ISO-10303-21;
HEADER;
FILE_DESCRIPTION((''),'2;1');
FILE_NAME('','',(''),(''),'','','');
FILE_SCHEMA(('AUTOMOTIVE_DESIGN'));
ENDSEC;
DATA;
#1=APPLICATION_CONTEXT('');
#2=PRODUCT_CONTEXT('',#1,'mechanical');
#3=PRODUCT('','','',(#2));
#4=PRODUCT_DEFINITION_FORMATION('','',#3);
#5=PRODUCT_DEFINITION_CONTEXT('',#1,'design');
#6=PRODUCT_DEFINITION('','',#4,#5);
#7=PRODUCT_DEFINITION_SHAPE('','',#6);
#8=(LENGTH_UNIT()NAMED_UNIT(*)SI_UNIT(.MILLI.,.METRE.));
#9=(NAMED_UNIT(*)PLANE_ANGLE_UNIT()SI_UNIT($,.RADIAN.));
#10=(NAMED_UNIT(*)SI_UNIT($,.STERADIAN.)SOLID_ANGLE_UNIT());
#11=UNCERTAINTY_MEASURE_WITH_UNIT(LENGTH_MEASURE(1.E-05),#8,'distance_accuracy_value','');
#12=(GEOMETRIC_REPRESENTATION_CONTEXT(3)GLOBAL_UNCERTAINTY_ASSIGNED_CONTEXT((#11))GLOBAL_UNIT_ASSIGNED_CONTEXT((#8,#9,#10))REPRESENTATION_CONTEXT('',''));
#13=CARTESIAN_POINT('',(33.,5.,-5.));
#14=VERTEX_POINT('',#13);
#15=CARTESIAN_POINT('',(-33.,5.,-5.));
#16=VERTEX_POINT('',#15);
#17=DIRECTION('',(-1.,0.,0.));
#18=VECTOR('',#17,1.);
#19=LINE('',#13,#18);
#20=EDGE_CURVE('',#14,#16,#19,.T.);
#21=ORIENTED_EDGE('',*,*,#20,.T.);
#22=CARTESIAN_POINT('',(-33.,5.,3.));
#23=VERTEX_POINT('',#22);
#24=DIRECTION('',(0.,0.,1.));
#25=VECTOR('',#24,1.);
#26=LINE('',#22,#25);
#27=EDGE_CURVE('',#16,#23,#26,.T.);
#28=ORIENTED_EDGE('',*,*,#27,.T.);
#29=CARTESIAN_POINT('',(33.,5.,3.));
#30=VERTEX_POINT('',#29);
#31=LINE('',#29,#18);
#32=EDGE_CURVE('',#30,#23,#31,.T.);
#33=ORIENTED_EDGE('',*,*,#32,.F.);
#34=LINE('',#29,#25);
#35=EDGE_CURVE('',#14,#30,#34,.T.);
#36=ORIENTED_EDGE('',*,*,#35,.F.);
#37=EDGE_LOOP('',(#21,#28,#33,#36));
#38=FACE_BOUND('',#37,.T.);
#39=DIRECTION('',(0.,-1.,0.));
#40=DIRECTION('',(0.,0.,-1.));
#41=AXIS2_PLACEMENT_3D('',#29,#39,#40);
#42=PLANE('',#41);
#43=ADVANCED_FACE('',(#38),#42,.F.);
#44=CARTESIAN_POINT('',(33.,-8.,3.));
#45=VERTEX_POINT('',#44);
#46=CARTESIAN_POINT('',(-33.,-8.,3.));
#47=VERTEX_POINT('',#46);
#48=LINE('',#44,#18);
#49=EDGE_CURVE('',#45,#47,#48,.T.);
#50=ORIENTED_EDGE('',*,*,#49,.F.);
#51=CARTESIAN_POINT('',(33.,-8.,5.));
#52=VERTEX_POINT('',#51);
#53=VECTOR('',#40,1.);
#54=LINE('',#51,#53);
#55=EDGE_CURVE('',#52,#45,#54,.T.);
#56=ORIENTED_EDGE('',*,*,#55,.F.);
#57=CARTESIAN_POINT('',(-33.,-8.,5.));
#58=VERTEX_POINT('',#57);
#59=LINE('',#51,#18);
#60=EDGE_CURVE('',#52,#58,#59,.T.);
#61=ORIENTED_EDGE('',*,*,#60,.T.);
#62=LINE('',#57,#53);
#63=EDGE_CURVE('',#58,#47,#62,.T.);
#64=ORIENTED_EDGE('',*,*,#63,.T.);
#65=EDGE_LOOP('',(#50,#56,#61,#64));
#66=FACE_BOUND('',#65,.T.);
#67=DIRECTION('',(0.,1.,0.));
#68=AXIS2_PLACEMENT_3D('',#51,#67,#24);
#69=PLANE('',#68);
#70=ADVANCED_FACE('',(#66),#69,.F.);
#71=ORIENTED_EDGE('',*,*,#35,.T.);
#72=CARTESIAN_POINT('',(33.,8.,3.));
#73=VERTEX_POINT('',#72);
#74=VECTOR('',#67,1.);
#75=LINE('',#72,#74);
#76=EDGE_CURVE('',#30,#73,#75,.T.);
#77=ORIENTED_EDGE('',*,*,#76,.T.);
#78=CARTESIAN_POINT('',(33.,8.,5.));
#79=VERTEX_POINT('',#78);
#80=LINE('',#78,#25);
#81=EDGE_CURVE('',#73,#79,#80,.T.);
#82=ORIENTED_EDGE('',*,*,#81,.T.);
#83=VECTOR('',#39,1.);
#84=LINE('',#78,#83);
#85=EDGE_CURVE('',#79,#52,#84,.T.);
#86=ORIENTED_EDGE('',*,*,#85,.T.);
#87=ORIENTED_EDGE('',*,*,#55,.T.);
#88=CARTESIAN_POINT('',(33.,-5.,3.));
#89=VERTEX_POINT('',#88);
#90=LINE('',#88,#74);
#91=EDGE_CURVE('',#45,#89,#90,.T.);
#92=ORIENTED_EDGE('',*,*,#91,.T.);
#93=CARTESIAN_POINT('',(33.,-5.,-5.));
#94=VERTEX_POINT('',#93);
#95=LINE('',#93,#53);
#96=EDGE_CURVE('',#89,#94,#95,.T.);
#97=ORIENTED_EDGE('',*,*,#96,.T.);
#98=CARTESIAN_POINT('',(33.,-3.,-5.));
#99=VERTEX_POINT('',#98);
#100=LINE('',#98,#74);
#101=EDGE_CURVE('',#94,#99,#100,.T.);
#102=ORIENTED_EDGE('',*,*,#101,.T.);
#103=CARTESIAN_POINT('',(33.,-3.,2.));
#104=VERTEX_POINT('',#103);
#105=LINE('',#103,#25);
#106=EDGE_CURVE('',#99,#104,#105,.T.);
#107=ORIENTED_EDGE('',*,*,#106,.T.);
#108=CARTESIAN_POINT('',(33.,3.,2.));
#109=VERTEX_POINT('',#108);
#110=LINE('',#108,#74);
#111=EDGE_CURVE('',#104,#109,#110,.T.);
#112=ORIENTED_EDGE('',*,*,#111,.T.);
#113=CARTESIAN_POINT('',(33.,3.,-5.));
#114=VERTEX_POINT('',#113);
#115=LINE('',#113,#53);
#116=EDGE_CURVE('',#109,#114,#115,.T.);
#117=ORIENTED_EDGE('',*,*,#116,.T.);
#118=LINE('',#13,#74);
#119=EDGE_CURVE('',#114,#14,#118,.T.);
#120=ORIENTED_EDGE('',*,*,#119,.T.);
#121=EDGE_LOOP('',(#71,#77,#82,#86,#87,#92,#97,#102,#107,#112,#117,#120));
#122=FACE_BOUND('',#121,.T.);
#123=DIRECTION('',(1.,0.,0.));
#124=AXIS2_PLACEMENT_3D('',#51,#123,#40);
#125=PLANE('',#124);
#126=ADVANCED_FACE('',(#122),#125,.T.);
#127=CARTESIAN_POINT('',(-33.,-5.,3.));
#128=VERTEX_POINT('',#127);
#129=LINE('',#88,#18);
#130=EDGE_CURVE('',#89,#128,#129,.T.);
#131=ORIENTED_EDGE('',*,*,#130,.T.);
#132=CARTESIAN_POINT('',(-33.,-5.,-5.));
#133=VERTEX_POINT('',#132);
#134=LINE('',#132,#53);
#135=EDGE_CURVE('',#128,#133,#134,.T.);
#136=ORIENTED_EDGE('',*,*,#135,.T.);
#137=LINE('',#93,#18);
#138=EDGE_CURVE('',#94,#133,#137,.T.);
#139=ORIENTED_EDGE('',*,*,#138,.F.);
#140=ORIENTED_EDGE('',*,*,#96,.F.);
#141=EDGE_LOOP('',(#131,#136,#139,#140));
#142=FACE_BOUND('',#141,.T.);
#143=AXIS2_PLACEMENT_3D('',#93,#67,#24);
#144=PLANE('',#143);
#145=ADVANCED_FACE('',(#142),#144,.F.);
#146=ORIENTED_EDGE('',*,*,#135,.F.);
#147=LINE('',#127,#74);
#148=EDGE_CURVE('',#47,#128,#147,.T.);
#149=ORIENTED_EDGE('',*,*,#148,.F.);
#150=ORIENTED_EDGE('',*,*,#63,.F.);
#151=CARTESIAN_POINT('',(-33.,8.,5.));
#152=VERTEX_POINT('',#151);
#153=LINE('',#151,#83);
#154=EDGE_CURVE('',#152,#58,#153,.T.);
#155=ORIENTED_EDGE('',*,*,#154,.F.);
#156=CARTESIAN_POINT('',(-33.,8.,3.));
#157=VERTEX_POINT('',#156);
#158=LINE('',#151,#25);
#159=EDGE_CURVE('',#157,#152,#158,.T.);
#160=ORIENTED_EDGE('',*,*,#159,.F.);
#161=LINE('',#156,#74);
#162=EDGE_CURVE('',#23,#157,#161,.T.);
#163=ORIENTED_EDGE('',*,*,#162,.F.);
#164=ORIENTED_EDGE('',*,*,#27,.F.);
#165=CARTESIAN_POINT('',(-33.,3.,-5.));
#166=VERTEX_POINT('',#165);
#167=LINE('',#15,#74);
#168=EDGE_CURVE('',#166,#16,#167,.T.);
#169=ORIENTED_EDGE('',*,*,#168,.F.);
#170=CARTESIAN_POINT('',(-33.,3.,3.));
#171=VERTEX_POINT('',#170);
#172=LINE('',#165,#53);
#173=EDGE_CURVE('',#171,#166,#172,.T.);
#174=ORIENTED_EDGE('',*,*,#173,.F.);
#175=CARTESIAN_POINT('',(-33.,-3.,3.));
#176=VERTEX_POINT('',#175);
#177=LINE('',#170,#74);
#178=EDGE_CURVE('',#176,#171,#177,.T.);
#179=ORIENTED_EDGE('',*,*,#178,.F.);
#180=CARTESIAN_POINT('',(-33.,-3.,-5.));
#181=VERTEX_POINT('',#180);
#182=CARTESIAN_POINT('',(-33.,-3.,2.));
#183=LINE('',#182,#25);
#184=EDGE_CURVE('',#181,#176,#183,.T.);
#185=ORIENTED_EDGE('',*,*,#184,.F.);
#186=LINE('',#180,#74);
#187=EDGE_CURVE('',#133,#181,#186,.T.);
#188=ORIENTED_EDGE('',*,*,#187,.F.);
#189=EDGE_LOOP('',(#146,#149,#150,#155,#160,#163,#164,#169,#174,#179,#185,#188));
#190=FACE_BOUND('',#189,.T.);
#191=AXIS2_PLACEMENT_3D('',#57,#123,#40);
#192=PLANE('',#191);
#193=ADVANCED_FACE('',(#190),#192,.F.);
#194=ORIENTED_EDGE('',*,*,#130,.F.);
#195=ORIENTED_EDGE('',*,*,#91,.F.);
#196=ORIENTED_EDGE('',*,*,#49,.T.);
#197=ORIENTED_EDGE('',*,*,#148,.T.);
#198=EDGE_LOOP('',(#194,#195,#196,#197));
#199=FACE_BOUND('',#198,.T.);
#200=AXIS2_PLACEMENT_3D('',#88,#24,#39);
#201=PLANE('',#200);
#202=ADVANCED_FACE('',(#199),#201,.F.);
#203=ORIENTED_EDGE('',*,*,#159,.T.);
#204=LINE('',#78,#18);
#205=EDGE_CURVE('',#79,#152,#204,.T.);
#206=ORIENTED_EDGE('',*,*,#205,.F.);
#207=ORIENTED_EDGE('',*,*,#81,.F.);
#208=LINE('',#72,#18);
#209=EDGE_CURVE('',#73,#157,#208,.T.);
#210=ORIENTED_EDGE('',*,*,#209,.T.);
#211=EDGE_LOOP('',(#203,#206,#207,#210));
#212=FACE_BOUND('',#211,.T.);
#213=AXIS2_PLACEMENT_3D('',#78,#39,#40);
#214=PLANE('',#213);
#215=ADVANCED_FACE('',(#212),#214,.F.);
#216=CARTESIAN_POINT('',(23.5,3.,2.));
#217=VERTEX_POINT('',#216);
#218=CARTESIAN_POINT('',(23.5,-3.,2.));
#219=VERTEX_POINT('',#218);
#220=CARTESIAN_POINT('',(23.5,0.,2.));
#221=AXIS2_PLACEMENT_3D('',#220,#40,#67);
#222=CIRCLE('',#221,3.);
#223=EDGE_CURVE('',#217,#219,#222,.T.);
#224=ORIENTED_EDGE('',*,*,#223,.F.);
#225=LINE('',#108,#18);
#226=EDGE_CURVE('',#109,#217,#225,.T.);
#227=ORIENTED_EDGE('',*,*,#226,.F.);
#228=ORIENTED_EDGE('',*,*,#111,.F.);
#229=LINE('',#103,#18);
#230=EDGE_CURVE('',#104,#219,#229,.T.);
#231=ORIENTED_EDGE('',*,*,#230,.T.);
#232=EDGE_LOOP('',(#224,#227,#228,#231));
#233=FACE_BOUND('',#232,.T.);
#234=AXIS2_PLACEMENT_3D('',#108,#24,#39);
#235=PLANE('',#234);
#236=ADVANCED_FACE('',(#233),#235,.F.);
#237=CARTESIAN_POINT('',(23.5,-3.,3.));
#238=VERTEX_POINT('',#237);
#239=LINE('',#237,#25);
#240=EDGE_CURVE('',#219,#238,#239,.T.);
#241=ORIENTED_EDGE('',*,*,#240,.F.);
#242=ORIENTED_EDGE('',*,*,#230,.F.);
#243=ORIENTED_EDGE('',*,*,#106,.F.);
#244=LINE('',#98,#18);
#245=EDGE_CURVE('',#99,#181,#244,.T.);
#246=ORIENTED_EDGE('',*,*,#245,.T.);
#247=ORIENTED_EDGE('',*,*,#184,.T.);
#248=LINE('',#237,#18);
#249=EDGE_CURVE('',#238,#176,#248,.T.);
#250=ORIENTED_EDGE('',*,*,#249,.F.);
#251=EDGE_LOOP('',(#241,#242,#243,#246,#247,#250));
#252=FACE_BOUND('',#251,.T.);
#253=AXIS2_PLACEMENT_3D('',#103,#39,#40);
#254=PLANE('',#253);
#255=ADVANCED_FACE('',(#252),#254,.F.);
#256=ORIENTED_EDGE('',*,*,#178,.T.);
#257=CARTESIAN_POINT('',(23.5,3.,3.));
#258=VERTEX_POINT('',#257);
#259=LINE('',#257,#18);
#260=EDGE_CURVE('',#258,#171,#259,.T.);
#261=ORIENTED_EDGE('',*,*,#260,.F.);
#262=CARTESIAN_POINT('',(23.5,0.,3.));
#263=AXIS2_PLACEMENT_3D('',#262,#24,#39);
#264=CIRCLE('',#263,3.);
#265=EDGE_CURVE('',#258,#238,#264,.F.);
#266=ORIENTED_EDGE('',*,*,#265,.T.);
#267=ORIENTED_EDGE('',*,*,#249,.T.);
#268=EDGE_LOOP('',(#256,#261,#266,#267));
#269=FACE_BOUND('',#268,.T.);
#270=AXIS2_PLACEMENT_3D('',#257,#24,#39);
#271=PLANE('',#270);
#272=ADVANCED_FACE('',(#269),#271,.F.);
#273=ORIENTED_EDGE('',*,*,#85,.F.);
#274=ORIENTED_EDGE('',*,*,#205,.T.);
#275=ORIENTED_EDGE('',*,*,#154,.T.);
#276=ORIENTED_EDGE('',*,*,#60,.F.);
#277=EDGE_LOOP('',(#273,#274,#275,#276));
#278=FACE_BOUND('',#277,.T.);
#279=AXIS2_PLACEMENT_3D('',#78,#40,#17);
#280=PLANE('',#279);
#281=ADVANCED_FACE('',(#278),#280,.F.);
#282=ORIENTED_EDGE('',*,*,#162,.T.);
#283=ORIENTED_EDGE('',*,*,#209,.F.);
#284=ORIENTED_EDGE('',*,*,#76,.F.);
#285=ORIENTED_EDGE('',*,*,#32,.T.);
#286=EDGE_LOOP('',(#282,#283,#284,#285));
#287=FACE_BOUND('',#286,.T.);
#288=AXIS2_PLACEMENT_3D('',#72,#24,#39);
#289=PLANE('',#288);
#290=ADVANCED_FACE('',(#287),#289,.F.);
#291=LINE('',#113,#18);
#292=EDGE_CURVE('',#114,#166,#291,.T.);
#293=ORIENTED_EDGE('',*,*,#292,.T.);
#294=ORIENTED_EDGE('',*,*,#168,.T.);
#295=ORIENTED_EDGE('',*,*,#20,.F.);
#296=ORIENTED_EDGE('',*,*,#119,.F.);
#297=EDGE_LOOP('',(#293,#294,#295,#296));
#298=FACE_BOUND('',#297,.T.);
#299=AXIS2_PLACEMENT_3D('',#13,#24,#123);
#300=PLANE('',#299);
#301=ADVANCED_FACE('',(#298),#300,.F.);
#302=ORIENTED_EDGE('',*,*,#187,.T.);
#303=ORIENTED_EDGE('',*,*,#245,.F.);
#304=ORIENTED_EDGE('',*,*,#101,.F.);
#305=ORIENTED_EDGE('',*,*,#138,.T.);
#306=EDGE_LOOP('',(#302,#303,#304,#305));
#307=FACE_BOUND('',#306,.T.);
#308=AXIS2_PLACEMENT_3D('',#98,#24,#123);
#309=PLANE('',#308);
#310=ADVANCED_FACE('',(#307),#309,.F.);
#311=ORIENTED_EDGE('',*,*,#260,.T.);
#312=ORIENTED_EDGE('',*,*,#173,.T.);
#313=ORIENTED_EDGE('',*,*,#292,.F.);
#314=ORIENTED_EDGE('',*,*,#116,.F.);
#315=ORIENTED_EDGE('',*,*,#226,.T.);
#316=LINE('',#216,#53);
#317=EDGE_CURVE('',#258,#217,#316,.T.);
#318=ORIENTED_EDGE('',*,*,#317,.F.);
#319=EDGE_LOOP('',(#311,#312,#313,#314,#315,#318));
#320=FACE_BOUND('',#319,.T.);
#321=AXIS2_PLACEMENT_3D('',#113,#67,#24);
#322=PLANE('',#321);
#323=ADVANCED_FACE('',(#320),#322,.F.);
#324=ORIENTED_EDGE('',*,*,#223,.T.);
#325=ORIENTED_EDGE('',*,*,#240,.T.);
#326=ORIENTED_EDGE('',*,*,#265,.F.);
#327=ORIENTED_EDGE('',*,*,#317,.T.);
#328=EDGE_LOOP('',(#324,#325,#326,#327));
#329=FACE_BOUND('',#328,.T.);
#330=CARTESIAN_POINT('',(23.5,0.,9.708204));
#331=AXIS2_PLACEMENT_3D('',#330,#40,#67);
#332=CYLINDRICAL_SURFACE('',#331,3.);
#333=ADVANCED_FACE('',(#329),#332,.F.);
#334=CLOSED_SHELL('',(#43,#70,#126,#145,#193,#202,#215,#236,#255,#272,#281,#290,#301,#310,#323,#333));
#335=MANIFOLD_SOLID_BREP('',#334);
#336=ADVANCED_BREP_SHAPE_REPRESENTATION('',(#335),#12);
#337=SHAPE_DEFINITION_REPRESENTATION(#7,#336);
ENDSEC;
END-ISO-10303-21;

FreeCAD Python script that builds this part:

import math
import FreeCAD as App
import Part
import Sketcher
from FreeCAD import Vector
Q = App.Units.Quantity


def add_polygon(sketch, points):
    """Adds a closed chain of lines whose ends are joined by coincident constraints."""
    first, n = sketch.GeometryCount, len(points)
    for a, b in zip(points, points[1:] + points[:1]):
        sketch.addGeometry(Part.LineSegment(App.Vector(*a, 0), App.Vector(*b, 0)), False)
    for i in range(n):
        sketch.addConstraint(Sketcher.Constraint("Coincident", first + i, 2, first + (i + 1) % n, 1))

doc = App.newDocument("Part")
body = doc.addObject("PartDesign::Body", "Body")

# Sketch on YZ plane
sketch1 = body.newObject("Sketcher::SketchObject", "Sketch")
sketch1.AttachmentSupport = (doc.getObject("YZ_Plane"), [""])
sketch1.MapMode = "FlatFace"
add_polygon(sketch1, [(5, 3), (8, 3), (8, 5), (-8, 5), (-8, 3), (-5, 3), (-5, -5), (-3, -5), (-3, 2), (3, 2), (3, -5), (5, -5)])  # lines 0-11
sketch1.addConstraint([
    Sketcher.Constraint("Horizontal", 0),
    Sketcher.Constraint("Vertical", 1),
    Sketcher.Constraint("Horizontal", 2),
    Sketcher.Constraint("Vertical", 3),
    Sketcher.Constraint("Horizontal", 4),
    Sketcher.Constraint("Vertical", 5),
    Sketcher.Constraint("Horizontal", 6),
    Sketcher.Constraint("Vertical", 7),
    Sketcher.Constraint("Horizontal", 8),
    Sketcher.Constraint("Vertical", 9),
    Sketcher.Constraint("Horizontal", 10),
    Sketcher.Constraint("Vertical", 11),
    Sketcher.Constraint("Symmetric", 0, 2, 3, 2, -2),
    Sketcher.Constraint("Symmetric", 6, 2, 9, 2, -2),
    Sketcher.Constraint("Equal", 0, 4),
    Sketcher.Constraint("Equal", 10, 1),
    Sketcher.Constraint("DistanceX", 0, 1, 0, 2, Q("3 mm")),
    Sketcher.Constraint("DistanceX", 2, 2, 2, 1, Q("16 mm")),
    Sketcher.Constraint("DistanceX", 6, 1, 6, 2, Q("2 mm")),
    Sketcher.Constraint("DistanceY", 5, 2, 5, 1, Q("8 mm")),
    Sketcher.Constraint("DistanceY", 7, 1, 7, 2, Q("7 mm")),
    Sketcher.Constraint("DistanceY", -1, 1, 0, 2, Q("3 mm")),
])
pad1 = body.newObject("PartDesign::Pad", "Pad")
pad1.Profile = sketch1
pad1.Length = 66
pad1.Midplane = True

# Sketch on YZ plane
sketch2 = body.newObject("Sketcher::SketchObject", "Sketch001")
sketch2.AttachmentSupport = (doc.getObject("YZ_Plane"), [""])
sketch2.MapMode = "FlatFace"
sketch2.AttachmentOffset = App.Placement(Vector(0, 0, -33), App.Rotation())
add_polygon(sketch2, [(3, 2), (-3, 2), (-3, 3), (3, 3)])  # lines 0-3
sketch2.addConstraint([
    Sketcher.Constraint("Horizontal", 0),
    Sketcher.Constraint("Vertical", 1),
    Sketcher.Constraint("Horizontal", 2),
    Sketcher.Constraint("Vertical", 3),
    Sketcher.Constraint("DistanceX", 0, 2, 0, 1, Q("6 mm")),
    Sketcher.Constraint("DistanceY", 1, 1, 1, 2, Q("1 mm")),
    Sketcher.Constraint("DistanceX", 0, 2, -1, 1, Q("3 mm")),
    Sketcher.Constraint("DistanceY", -1, 1, 0, 2, Q("2 mm")),
])
pocket1 = body.newObject("PartDesign::Pocket", "Pocket")
pocket1.Profile = sketch2
pocket1.Length = 56.5
pocket1.Reversed = True

# Sketch on XY plane
sketch3 = body.newObject("Sketcher::SketchObject", "Sketch002")
sketch3.AttachmentSupport = (doc.getObject("XY_Plane"), [""])
sketch3.MapMode = "FlatFace"
sketch3.AttachmentOffset = App.Placement(Vector(0, 0, 2), App.Rotation())
sketch3.addGeometry([
    Part.LineSegment(Vector(23.5, -3, 0), Vector(23.5, 3, 0)),
    Part.ArcOfCircle(Part.Circle(Vector(23.5, 0, 0), Vector(0, 0, 1), 3), math.radians(-90), math.radians(90)),
], False)
sketch3.addConstraint([
    Sketcher.Constraint("Coincident", 0, 1, 1, 1),
    Sketcher.Constraint("Coincident", 1, 2, 0, 2),
    Sketcher.Constraint("Vertical", 0),
    Sketcher.Constraint("PointOnObject", 1, 3, -1),
    Sketcher.Constraint("Vertical", 1, 3, 0, 1),
    Sketcher.Constraint("Radius", 1, Q("3 mm")),
    Sketcher.Constraint("DistanceX", -1, 1, 1, 3, Q("23.5 mm")),
])
pocket2 = body.newObject("PartDesign::Pocket", "Pocket001")
pocket2.Profile = sketch3
pocket2.Length = 1
pocket2.Reversed = True

doc.recompute()
